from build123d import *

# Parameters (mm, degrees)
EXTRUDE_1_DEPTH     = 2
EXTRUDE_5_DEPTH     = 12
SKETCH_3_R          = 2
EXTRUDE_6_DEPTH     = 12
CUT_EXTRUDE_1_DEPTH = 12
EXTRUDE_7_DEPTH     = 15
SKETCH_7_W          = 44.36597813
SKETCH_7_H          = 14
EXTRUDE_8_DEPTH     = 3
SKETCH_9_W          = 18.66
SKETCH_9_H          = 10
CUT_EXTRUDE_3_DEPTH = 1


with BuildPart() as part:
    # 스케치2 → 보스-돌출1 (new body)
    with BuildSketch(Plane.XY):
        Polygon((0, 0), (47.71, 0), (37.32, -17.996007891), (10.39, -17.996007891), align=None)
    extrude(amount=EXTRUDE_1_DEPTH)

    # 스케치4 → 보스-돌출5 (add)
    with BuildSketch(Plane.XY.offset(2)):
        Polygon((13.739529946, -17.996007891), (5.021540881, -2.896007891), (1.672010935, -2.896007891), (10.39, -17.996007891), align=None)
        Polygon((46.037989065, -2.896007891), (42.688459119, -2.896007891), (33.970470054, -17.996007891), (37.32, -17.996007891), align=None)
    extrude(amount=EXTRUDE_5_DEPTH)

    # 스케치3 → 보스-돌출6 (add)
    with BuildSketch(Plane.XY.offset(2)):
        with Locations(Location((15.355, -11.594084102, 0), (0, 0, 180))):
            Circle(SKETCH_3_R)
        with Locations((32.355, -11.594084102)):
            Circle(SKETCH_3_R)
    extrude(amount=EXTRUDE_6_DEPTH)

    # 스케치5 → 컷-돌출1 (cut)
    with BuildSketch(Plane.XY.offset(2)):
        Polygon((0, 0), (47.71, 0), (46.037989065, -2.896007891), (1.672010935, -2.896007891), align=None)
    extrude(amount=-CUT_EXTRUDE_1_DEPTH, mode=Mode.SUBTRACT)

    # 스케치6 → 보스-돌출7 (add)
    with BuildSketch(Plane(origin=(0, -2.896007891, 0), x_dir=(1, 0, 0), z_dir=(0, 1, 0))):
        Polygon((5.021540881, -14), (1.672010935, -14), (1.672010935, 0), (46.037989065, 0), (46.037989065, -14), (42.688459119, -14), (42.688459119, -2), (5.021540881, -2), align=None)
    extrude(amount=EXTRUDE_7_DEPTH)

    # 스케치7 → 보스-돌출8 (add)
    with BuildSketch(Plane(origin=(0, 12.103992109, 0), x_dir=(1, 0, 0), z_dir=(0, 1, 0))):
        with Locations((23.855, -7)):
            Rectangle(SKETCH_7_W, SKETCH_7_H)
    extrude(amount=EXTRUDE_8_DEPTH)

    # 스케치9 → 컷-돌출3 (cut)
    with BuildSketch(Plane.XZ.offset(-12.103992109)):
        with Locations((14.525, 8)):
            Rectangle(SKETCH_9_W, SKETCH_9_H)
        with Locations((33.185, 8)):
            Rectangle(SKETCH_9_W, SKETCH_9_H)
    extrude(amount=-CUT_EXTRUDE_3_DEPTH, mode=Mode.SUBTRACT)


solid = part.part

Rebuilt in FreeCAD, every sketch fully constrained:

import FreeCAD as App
import Part
import Sketcher
Q = App.Units.Quantity


def add_polygon(sketch, points):
    """Adds a closed chain of lines whose ends are joined by coincident constraints."""
    first, n = sketch.GeometryCount, len(points)
    for a, b in zip(points, points[1:] + points[:1]):
        sketch.addGeometry(Part.LineSegment(App.Vector(*a, 0), App.Vector(*b, 0)), False)
    for i in range(n):
        sketch.addConstraint(Sketcher.Constraint("Coincident", first + i, 2, first + (i + 1) % n, 1))

doc = App.newDocument("Part")
body = doc.addObject("PartDesign::Body", "Body")

# Sketch on XY plane
sketch1 = body.newObject("Sketcher::SketchObject", "Sketch")
sketch1.AttachmentSupport = (doc.getObject("XY_Plane"), [""])
sketch1.MapMode = "FlatFace"
add_polygon(sketch1, [(48, 0), (0, 0), (10, -18), (37, -18)])  # lines 0-3
sketch1.addConstraint([
    Sketcher.Constraint("Horizontal", 0),
    Sketcher.Constraint("Horizontal", 2),
    Sketcher.Constraint("Coincident", 0, 2, -1, 1),
    Sketcher.Constraint("Equal", 1, 3),
    Sketcher.Constraint("Angle", 1, Q("-60 deg")),
    Sketcher.Constraint("DistanceX", 0, 2, 0, 1, 47.71),
    Sketcher.Constraint("DistanceX", 2, 1, 2, 2, 26.93),
])
pad1 = body.newObject("PartDesign::Pad", "Pad")
pad1.Profile = sketch1
pad1.Length = 2

# Sketch on XY plane
sketch2 = body.newObject("Sketcher::SketchObject", "Sketch001")
sketch2.AttachmentSupport = (doc.getObject("XY_Plane"), [""])
sketch2.MapMode = "FlatFace"
sketch2.AttachmentOffset = App.Placement(App.Vector(0, 0, 2), App.Rotation())
add_polygon(sketch2, [(13.7, -18), (5, -2.9), (1.7, -2.9), (10.4, -18)])  # lines 0-3
add_polygon(sketch2, [(46, -2.9), (42.7, -2.9), (34, -18), (37.3, -18)])  # lines 4-7
sketch2.addConstraint([
    Sketcher.Constraint("Horizontal", 1),
    Sketcher.Constraint("Horizontal", 3),
    Sketcher.Constraint("Horizontal", 4),
    Sketcher.Constraint("Horizontal", 6),
    Sketcher.Constraint("Parallel", 0, 2),
    Sketcher.Constraint("Parallel", 5, 7),
    Sketcher.Constraint("Horizontal", 1, 2, 4, 2),
    Sketcher.Constraint("Horizontal", 3, 2, 5, 2),
    Sketcher.Constraint("Equal", 3, 4),
    Sketcher.Constraint("Equal", 2, 5),
    Sketcher.Constraint("Angle", 0, Q("120 deg")),
    Sketcher.Constraint("DistanceY", 2, 2, 0, 2, 15.1),
    Sketcher.Constraint("DistanceX", -1, 1, 2, 2, 10.39),
    Sketcher.Constraint("DistanceX", -1, 1, 6, 2, 37.32),
    Sketcher.Constraint("DistanceX", 1, 2, 1, 1, 3.34953),
    Sketcher.Constraint("DistanceY", 0, 2, -1, 1, 2.896008),
])
pad2 = body.newObject("PartDesign::Pad", "Pad001")
pad2.Profile = sketch2
pad2.Length = 12

# Sketch on XY plane
sketch3 = body.newObject("Sketcher::SketchObject", "Sketch002")
sketch3.AttachmentSupport = (doc.getObject("XY_Plane"), [""])
sketch3.MapMode = "FlatFace"
sketch3.AttachmentOffset = App.Placement(App.Vector(0, 0, 2), App.Rotation())
sketch3.addGeometry([
    Part.Circle(App.Vector(15.4, -11.6, 0), App.Vector(0, 0, 1), 2),
    Part.Circle(App.Vector(32.4, -11.6, 0), App.Vector(0, 0, 1), 2),
], False)
sketch3.addConstraint([
    Sketcher.Constraint("Equal", 0, 1),
    Sketcher.Constraint("Horizontal", 0, 3, 1, 3),
    Sketcher.Constraint("Diameter", 0, 4.0),
    Sketcher.Constraint("DistanceX", 0, 3, 1, 3, 17.0),
    Sketcher.Constraint("DistanceX", -1, 1, 0, 3, 15.355),
    Sketcher.Constraint("DistanceY", 0, 3, -1, 1, 11.594084),
])
pad3 = body.newObject("PartDesign::Pad", "Pad002")
pad3.Profile = sketch3
pad3.Length = 12

# Sketch on XY plane
sketch4 = body.newObject("Sketcher::SketchObject", "Sketch003")
sketch4.AttachmentSupport = (doc.getObject("XY_Plane"), [""])
sketch4.MapMode = "FlatFace"
sketch4.AttachmentOffset = App.Placement(App.Vector(0, 0, 2), App.Rotation())
add_polygon(sketch4, [(47.7, 0), (0, 0), (1.7, -2.9), (46, -2.9)])  # lines 0-3
sketch4.addConstraint([
    Sketcher.Constraint("Horizontal", 0),
    Sketcher.Constraint("Horizontal", 2),
    Sketcher.Constraint("Coincident", 0, 2, -1, 1),
    Sketcher.Constraint("Equal", 1, 3),
    Sketcher.Constraint("Angle", 1, Q("-60 deg")),
    Sketcher.Constraint("DistanceX", 0, 2, 0, 1, 47.71),
    Sketcher.Constraint("DistanceX", 2, 1, 2, 2, 44.365978),
])
pocket1 = body.newObject("PartDesign::Pocket", "Pocket")
pocket1.Profile = sketch4
pocket1.Length = 12

# Sketch on XZ plane
sketch5 = body.newObject("Sketcher::SketchObject", "Sketch004")
sketch5.AttachmentSupport = (doc.getObject("XZ_Plane"), [""])
sketch5.MapMode = "FlatFace"
sketch5.AttachmentOffset = App.Placement(App.Vector(0, 0, 2.896008), App.Rotation())
add_polygon(sketch5, [(1.7, 14), (5, 14), (5, 2), (42.7, 2), (42.7, 14), (46, 14), (46, 0), (1.7, 0)])  # lines 0-7
sketch5.addConstraint([
    Sketcher.Constraint("Horizontal", 0),
    Sketcher.Constraint("Vertical", 1),
    Sketcher.Constraint("Horizontal", 2),
    Sketcher.Constraint("Vertical", 3),
    Sketcher.Constraint("Horizontal", 4),
    Sketcher.Constraint("Vertical", 5),
    Sketcher.Constraint("Horizontal", 6),
    Sketcher.Constraint("Vertical", 7),
    Sketcher.Constraint("PointOnObject", 5, 2, -1),
    Sketcher.Constraint("Horizontal", 0, 2, 3, 2),
    Sketcher.Constraint("Equal", 0, 4),
    Sketcher.Constraint("DistanceY", 1, 2, 1, 1, 12.0),
    Sketcher.Constraint("DistanceY", 5, 2, 5, 1, 14.0),
    Sketcher.Constraint("DistanceX", 0, 1, 0, 2, 3.34953),
    Sketcher.Constraint("DistanceX", 2, 1, 2, 2, 37.666918),
    Sketcher.Constraint("DistanceX", -1, 1, 0, 2, 5.021541),
])
pad4 = body.newObject("PartDesign::Pad", "Pad003")
pad4.Profile = sketch5
pad4.Length = 15
pad4.Reversed = True

# Sketch on XZ plane
sketch6 = body.newObject("Sketcher::SketchObject", "Sketch005")
sketch6.AttachmentSupport = (doc.getObject("XZ_Plane"), [""])
sketch6.MapMode = "FlatFace"
sketch6.AttachmentOffset = App.Placement(App.Vector(0, 0, -12.103992), App.Rotation())
add_polygon(sketch6, [(2, 0), (2, 14), (46, 14), (46, 0)])  # lines 0-3
sketch6.addConstraint([
    Sketcher.Constraint("Vertical", 0),
    Sketcher.Constraint("Horizontal", 1),
    Sketcher.Constraint("Vertical", 2),
    Sketcher.Constraint("Horizontal", 3),
    Sketcher.Constraint("PointOnObject", 2, 2, -1),
    Sketcher.Constraint("DistanceY", 0, 1, 0, 2, 14.0),
    Sketcher.Constraint("DistanceX", 1, 1, 1, 2, 44.365978),
    Sketcher.Constraint("DistanceX", -1, 1, 0, 2, 1.672011),
])
pad5 = body.newObject("PartDesign::Pad", "Pad004")
pad5.Profile = sketch6
pad5.Length = 3
pad5.Reversed = True

# Sketch on XZ plane
sketch7 = body.newObject("Sketcher::SketchObject", "Sketch006")
sketch7.AttachmentSupport = (doc.getObject("XZ_Plane"), [""])
sketch7.MapMode = "FlatFace"
sketch7.AttachmentOffset = App.Placement(App.Vector(0, 0, -12.103992), App.Rotation())
add_polygon(sketch7, [(5, 13), (5, 3), (43, 3), (43, 13)])  # lines 0-3
sketch7.addConstraint([
    Sketcher.Constraint("Vertical", 0),
    Sketcher.Constraint("Horizontal", 1),
    Sketcher.Constraint("Vertical", 2),
    Sketcher.Constraint("Horizontal", 3),
    Sketcher.Constraint("DistanceY", 0, 2, 0, 1, 10.0),
    Sketcher.Constraint("DistanceY", -1, 1, 0, 2, 3.0),
    Sketcher.Constraint("DistanceX", 1, 1, 1, 2, 37.32),
    Sketcher.Constraint("DistanceX", -1, 1, 0, 2, 5.195),
])
pocket2 = body.newObject("PartDesign::Pocket", "Pocket001")
pocket2.Profile = sketch7
pocket2.Length = 1

doc.recompute()
